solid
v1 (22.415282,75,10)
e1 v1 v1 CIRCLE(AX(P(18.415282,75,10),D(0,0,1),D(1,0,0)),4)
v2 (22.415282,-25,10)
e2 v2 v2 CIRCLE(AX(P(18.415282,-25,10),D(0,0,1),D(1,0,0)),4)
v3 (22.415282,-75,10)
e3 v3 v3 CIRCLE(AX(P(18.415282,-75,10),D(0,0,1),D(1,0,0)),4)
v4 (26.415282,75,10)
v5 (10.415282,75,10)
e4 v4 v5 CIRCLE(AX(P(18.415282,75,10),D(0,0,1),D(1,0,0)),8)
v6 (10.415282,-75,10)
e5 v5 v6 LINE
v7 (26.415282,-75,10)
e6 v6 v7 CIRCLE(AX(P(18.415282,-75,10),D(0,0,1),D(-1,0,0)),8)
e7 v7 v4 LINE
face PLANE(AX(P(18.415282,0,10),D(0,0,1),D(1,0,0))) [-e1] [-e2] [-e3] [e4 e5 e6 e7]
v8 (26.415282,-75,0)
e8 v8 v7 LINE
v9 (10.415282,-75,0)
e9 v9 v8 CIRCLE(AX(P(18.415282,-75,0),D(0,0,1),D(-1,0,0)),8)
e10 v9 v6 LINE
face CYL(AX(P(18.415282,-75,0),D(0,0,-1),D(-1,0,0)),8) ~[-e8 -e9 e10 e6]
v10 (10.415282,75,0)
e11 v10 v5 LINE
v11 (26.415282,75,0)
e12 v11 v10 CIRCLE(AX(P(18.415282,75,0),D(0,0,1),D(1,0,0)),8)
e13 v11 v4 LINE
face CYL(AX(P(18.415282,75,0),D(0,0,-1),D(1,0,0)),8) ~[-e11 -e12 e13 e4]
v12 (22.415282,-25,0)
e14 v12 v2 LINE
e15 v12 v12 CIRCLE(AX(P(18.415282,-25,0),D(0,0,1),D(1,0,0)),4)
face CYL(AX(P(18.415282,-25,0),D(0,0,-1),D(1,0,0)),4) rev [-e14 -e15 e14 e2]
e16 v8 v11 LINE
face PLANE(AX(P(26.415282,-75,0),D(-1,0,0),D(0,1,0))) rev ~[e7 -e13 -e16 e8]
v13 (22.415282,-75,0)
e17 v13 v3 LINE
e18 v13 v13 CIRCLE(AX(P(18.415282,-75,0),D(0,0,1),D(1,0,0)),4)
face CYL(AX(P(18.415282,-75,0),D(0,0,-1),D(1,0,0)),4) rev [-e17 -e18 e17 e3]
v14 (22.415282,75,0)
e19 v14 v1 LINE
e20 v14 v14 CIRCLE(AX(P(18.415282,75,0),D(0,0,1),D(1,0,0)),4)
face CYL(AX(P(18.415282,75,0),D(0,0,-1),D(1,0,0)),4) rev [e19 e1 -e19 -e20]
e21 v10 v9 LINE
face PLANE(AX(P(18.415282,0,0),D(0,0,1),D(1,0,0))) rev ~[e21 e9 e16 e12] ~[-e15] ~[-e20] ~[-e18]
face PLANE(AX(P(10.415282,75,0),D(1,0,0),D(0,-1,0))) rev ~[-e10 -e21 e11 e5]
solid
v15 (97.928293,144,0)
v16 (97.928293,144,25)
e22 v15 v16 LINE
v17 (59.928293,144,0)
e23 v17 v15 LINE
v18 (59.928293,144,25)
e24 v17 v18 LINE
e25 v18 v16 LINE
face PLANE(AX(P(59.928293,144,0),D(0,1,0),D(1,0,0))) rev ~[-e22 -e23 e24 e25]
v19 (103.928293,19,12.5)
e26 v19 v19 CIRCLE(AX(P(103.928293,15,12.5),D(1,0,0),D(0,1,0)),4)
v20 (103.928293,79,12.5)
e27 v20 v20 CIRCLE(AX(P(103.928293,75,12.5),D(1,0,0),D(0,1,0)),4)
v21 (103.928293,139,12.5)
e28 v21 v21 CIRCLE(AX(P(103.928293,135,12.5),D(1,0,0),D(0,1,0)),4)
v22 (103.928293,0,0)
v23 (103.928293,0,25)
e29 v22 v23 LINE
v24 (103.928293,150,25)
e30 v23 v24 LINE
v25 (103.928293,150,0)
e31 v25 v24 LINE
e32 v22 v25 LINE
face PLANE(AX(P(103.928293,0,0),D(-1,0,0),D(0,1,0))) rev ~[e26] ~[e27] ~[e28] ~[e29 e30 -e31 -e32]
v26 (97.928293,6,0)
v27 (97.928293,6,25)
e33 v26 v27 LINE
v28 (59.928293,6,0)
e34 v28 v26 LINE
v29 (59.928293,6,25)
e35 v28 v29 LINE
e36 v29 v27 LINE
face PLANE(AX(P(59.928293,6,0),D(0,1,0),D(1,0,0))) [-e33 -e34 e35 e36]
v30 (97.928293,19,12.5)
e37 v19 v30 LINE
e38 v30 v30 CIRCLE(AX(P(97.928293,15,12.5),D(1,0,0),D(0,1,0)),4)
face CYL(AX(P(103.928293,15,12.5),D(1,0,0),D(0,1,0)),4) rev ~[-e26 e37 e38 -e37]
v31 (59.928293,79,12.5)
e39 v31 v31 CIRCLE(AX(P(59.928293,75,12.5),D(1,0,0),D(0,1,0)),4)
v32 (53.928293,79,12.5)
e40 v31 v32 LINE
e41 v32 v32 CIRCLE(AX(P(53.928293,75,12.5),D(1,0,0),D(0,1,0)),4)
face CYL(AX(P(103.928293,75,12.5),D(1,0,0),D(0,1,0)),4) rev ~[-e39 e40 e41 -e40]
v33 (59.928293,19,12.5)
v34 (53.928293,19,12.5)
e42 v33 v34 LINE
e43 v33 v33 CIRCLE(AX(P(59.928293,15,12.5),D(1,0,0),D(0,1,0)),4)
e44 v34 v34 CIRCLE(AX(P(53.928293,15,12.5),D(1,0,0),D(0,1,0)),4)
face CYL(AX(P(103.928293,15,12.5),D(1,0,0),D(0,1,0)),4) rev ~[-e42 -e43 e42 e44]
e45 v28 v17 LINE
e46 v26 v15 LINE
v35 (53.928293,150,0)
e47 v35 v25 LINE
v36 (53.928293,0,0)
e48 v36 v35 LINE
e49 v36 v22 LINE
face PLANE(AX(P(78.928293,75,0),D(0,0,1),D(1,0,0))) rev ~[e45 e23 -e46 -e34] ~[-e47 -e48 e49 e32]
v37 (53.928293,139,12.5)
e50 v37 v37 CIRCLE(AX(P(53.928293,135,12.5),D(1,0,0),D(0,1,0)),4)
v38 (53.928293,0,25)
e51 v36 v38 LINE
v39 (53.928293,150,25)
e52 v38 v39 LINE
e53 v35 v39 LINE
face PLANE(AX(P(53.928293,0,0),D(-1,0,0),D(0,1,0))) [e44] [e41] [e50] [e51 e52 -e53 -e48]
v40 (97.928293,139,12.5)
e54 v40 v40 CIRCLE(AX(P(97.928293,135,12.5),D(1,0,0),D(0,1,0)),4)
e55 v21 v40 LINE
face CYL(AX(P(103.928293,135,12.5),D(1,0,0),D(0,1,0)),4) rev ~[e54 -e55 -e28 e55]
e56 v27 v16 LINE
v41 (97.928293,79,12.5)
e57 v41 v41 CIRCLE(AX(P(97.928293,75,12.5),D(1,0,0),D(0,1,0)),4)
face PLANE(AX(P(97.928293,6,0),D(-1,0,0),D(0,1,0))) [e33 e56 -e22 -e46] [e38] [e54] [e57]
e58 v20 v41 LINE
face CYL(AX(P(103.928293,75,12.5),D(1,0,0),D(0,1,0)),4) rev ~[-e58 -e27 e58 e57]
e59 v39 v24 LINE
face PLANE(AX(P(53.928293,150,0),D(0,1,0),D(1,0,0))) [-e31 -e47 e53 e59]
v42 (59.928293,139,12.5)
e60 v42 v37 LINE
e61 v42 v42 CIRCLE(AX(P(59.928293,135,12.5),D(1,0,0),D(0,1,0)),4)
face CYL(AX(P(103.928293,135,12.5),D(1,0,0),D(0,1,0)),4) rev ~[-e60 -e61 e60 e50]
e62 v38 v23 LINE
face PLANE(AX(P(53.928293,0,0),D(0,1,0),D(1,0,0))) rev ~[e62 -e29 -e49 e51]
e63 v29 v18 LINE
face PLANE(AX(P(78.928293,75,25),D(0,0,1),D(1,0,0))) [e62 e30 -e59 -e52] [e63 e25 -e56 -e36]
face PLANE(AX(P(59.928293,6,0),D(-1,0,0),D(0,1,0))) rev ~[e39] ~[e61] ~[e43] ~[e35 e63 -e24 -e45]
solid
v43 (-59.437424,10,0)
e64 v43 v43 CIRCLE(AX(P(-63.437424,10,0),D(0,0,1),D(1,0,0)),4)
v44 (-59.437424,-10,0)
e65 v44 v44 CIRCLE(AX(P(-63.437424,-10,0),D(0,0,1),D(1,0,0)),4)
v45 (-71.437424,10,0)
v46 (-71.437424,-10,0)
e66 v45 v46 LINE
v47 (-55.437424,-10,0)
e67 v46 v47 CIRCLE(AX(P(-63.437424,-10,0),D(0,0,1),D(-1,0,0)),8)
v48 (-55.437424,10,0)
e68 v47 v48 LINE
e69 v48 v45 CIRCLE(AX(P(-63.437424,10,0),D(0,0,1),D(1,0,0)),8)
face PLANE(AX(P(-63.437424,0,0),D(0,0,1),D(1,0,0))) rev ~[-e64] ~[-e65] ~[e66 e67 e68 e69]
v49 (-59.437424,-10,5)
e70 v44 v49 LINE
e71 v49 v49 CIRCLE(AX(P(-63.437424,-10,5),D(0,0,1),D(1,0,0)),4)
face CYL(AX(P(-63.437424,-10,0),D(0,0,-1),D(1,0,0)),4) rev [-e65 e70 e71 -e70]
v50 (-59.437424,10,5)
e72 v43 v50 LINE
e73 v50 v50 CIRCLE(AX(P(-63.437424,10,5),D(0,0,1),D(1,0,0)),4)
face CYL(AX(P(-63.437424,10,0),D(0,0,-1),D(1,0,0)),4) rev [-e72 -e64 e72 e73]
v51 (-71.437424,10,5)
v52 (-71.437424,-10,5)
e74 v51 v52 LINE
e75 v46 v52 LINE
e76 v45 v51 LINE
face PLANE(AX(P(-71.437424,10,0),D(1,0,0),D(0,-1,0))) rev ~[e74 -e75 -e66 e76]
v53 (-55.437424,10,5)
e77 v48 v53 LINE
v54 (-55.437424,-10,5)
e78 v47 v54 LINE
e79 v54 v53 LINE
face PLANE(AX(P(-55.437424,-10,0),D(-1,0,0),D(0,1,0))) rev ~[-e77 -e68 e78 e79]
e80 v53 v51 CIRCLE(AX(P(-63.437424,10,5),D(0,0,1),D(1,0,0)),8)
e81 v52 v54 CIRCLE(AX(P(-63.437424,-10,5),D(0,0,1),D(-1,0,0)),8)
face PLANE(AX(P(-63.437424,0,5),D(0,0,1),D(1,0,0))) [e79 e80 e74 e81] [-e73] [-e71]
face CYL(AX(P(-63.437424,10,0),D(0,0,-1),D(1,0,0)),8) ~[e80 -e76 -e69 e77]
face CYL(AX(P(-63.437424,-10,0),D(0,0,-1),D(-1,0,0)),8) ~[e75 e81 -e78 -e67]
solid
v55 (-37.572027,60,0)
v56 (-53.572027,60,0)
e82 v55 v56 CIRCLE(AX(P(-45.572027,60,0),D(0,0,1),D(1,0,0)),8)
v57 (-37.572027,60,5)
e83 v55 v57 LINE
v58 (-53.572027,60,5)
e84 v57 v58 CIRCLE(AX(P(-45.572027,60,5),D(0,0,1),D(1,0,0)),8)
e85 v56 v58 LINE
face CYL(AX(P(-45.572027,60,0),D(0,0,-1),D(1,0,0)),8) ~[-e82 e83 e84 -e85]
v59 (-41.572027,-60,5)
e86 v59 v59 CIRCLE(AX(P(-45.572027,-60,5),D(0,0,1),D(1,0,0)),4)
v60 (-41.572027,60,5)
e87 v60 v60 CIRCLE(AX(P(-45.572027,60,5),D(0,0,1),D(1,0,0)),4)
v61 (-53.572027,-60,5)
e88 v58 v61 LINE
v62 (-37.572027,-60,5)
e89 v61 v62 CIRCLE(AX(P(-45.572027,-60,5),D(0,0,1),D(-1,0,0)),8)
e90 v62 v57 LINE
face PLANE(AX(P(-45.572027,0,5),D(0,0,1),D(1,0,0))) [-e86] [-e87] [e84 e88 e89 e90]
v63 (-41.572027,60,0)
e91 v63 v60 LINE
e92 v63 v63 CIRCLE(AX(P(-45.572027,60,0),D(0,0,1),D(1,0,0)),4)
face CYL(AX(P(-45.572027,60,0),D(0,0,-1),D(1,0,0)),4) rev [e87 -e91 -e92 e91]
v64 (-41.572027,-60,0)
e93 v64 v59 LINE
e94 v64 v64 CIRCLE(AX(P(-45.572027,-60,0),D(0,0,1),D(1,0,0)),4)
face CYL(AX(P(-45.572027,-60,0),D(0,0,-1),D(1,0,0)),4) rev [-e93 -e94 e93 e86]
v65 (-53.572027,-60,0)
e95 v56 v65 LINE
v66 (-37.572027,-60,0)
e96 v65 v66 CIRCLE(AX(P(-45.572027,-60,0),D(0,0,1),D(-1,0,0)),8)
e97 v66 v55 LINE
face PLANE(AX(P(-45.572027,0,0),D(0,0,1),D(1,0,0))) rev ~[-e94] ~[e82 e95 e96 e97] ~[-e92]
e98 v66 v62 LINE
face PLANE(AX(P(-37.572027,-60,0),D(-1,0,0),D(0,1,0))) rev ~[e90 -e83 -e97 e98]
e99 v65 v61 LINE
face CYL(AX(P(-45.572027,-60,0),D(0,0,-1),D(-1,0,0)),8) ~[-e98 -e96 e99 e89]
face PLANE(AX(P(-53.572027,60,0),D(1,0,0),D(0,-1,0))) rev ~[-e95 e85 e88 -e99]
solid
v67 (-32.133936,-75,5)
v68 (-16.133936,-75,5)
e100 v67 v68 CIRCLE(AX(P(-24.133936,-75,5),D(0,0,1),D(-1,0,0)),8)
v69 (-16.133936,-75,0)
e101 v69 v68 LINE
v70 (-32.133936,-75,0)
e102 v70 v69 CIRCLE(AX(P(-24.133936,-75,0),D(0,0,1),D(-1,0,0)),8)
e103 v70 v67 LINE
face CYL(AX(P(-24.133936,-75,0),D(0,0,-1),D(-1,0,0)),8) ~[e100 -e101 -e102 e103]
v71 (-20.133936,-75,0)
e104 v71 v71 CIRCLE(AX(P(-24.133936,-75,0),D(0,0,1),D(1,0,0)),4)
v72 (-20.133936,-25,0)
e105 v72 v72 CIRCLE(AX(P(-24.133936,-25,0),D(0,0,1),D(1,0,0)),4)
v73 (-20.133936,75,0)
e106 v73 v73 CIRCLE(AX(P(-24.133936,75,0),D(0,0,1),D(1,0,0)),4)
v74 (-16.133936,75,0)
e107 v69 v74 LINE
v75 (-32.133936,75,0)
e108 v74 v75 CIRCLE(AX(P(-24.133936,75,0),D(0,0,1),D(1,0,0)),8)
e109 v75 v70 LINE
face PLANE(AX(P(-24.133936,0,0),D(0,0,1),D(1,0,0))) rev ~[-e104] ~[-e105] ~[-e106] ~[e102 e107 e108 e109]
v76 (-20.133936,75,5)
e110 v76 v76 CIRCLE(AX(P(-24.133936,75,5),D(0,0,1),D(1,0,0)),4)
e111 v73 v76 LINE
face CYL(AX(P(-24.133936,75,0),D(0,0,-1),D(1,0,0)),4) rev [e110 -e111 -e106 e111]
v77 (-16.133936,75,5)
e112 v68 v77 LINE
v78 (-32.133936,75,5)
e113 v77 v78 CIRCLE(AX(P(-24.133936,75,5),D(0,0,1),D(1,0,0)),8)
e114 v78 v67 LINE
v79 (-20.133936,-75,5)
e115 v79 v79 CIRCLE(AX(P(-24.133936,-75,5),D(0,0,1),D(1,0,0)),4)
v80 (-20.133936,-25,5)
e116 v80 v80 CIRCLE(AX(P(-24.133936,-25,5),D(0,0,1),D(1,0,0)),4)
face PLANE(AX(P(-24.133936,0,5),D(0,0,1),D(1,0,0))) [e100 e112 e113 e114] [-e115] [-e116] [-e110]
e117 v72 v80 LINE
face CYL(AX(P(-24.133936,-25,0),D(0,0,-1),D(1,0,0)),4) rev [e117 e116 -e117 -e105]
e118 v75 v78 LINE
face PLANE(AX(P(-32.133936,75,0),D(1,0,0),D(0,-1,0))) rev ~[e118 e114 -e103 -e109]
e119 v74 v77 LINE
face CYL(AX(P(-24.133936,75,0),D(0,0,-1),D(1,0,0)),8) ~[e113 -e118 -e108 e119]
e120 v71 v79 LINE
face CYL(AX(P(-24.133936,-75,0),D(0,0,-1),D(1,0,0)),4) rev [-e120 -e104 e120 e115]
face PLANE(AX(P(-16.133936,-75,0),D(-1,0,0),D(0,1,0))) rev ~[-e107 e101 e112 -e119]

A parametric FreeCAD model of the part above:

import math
import FreeCAD as App
import Part
import Sketcher
from FreeCAD import Vector
Q = App.Units.Quantity

doc = App.newDocument("Part")
body = doc.addObject("PartDesign::Body", "Body")

# Sketch on XY plane
sketch1 = doc.addObject("Sketcher::SketchObject", "Sketch")
body.addObject(sketch1)
sketch1.AttachmentSupport = (doc.XY_Plane, [""])
sketch1.MapMode = "FlatFace"
sketch1.addGeometry([
    Part.LineSegment(Vector(54, 150, 0), Vector(54, 0, 0)),  # 0
    Part.LineSegment(Vector(54, 0, 0), Vector(104, 0, 0)),  # 1
    Part.LineSegment(Vector(104, 0, 0), Vector(104, 150, 0)),  # 2
    Part.LineSegment(Vector(104, 150, 0), Vector(54, 150, 0)),  # 3
    Part.LineSegment(Vector(98, 6, 0), Vector(60, 6, 0)),  # 4
    Part.LineSegment(Vector(60, 6, 0), Vector(60, 144, 0)),  # 5
    Part.LineSegment(Vector(60, 144, 0), Vector(98, 144, 0)),  # 6
    Part.LineSegment(Vector(98, 144, 0), Vector(98, 6, 0)),  # 7
], False)
sketch1.addConstraint([
    Sketcher.Constraint("Coincident", 0, 2, 1, 1),
    Sketcher.Constraint("Coincident", 1, 2, 2, 1),
    Sketcher.Constraint("Coincident", 2, 2, 3, 1),
    Sketcher.Constraint("Coincident", 3, 2, 0, 1),
    Sketcher.Constraint("Coincident", 4, 2, 5, 1),
    Sketcher.Constraint("Coincident", 5, 2, 6, 1),
    Sketcher.Constraint("Coincident", 6, 2, 7, 1),
    Sketcher.Constraint("Coincident", 7, 2, 4, 1),
    Sketcher.Constraint("Vertical", 0),
    Sketcher.Constraint("Horizontal", 1),
    Sketcher.Constraint("Vertical", 2),
    Sketcher.Constraint("Horizontal", 3),
    Sketcher.Constraint("Horizontal", 4),
    Sketcher.Constraint("Vertical", 5),
    Sketcher.Constraint("Horizontal", 6),
    Sketcher.Constraint("Vertical", 7),
    Sketcher.Constraint("PointOnObject", 0, 2, -1),
    Sketcher.Constraint("DistanceX", 1, 1, 1, 2, Q("50 mm")),
    Sketcher.Constraint("DistanceX", 4, 2, 4, 1, Q("38 mm")),
    Sketcher.Constraint("DistanceY", 0, 2, 0, 1, Q("150 mm")),
    Sketcher.Constraint("DistanceY", 5, 1, 5, 2, Q("138 mm")),
    Sketcher.Constraint("DistanceY", -1, 1, 4, 2, Q("6 mm")),
    Sketcher.Constraint("DistanceX", 0, 2, 4, 2, Q("6 mm")),
    Sketcher.Constraint("DistanceX", -1, 1, 0, 2, Q("53.928293 mm")),
])
pad1 = doc.addObject("PartDesign::Pad", "Pad")
body.addObject(pad1)
pad1.Profile = sketch1
pad1.Length = 25

# Sketch on YZ plane
sketch2 = doc.addObject("Sketcher::SketchObject", "Sketch001")
body.addObject(sketch2)
sketch2.AttachmentSupport = (doc.YZ_Plane, [""])
sketch2.MapMode = "FlatFace"
sketch2.AttachmentOffset = App.Placement(Vector(0, 0, 103.928293), App.Rotation())
sketch2.addGeometry([
    Part.Circle(Vector(15, 12.5, 0), Vector(0, 0, 1), 4),
    Part.Circle(Vector(75, 12.5, 0), Vector(0, 0, 1), 4),
    Part.Circle(Vector(135, 12.5, 0), Vector(0, 0, 1), 4),
], False)
sketch2.addConstraint([
    Sketcher.Constraint("Equal", 0, 1),
    Sketcher.Constraint("Equal", 1, 2),
    Sketcher.Constraint("Horizontal", 0, 3, 1, 3),
    Sketcher.Constraint("Horizontal", 1, 3, 2, 3),
    Sketcher.Constraint("Diameter", 0, Q("8 mm")),
    Sketcher.Constraint("DistanceX", -1, 1, 0, 3, Q("15 mm")),
    Sketcher.Constraint("DistanceX", -1, 1, 1, 3, Q("75 mm")),
    Sketcher.Constraint("DistanceX", -1, 1, 2, 3, Q("135 mm")),
    Sketcher.Constraint("DistanceY", -1, 1, 0, 3, Q("12.5 mm")),
])
pocket1 = doc.addObject("PartDesign::Pocket", "Pocket")
body.addObject(pocket1)
pocket1.Profile = sketch2
pocket1.Length = 67.1
body2 = doc.addObject("PartDesign::Body", "Body001")

# Sketch on XY plane
sketch3 = doc.addObject("Sketcher::SketchObject", "Sketch002")
body2.addObject(sketch3)
sketch3.AttachmentSupport = (doc.getObject("XY_Plane001"), [""])
sketch3.MapMode = "FlatFace"
sketch3.addGeometry([
    Part.LineSegment(Vector(-16.1, -75, 0), Vector(-16.1, 75, 0)),  # 0
    Part.ArcOfCircle(Part.Circle(Vector(-24.1, 75, 0), Vector(0, 0, 1), 8), math.radians(0), math.radians(180)),  # 1
    Part.LineSegment(Vector(-32.1, 75, 0), Vector(-32.1, -75, 0)),  # 2
    Part.ArcOfCircle(Part.Circle(Vector(-24.1, -75, 0), Vector(0, 0, 1), 8), math.radians(180), math.radians(360)),  # 3
    Part.Circle(Vector(-24.1, -75, 0), Vector(0, 0, 1), 4),  # 4
    Part.Circle(Vector(-24.1, -25, 0), Vector(0, 0, 1), 4),  # 5
    Part.Circle(Vector(-24.1, 75, 0), Vector(0, 0, 1), 4),  # 6
], False)
sketch3.addConstraint([
    Sketcher.Constraint("Tangent", 0, 2, 1, 1),
    Sketcher.Constraint("Tangent", 1, 2, 2, 1),
    Sketcher.Constraint("Tangent", 2, 2, 3, 1),
    Sketcher.Constraint("Tangent", 3, 2, 0, 1),
    Sketcher.Constraint("Vertical", 0),
    Sketcher.Constraint("Vertical", 2),
    Sketcher.Constraint("Coincident", 4, 3, 3, 3),
    Sketcher.Constraint("Coincident", 6, 3, 1, 3),
    Sketcher.Constraint("Equal", 4, 5),
    Sketcher.Constraint("Equal", 5, 6),
    Sketcher.Constraint("Vertical", 4, 3, 5, 3),
    Sketcher.Constraint("Diameter", 4, Q("8 mm")),
    Sketcher.Constraint("Radius", 1, Q("8 mm")),
    Sketcher.Constraint("DistanceY", 0, 1, 0, 2, Q("150 mm")),
    Sketcher.Constraint("DistanceY", -1, 1, 1, 3, Q("75 mm")),
    Sketcher.Constraint("DistanceY", 5, 3, -1, 1, Q("25 mm")),
    Sketcher.Constraint("DistanceX", 1, 3, -1, 1, Q("24.133936 mm")),
])
pad2 = doc.addObject("PartDesign::Pad", "Pad001")
body2.addObject(pad2)
pad2.Profile = sketch3
pad2.Length = 5
body3 = doc.addObject("PartDesign::Body", "Body002")

# Sketch on XY plane
sketch4 = doc.addObject("Sketcher::SketchObject", "Sketch003")
body3.addObject(sketch4)
sketch4.AttachmentSupport = (doc.getObject("XY_Plane002"), [""])
sketch4.MapMode = "FlatFace"
sketch4.addGeometry([
    Part.LineSegment(Vector(-37.6, -60, 0), Vector(-37.6, 60, 0)),  # 0
    Part.ArcOfCircle(Part.Circle(Vector(-45.6, 60, 0), Vector(0, 0, 1), 8), math.radians(0), math.radians(180)),  # 1
    Part.LineSegment(Vector(-53.6, 60, 0), Vector(-53.6, -60, 0)),  # 2
    Part.ArcOfCircle(Part.Circle(Vector(-45.6, -60, 0), Vector(0, 0, 1), 8), math.radians(180), math.radians(360)),  # 3
    Part.Circle(Vector(-45.6, -60, 0), Vector(0, 0, 1), 4),  # 4
    Part.Circle(Vector(-45.6, 60, 0), Vector(0, 0, 1), 4),  # 5
], False)
sketch4.addConstraint([
    Sketcher.Constraint("Tangent", 0, 2, 1, 1),
    Sketcher.Constraint("Tangent", 1, 2, 2, 1),
    Sketcher.Constraint("Tangent", 2, 2, 3, 1),
    Sketcher.Constraint("Tangent", 3, 2, 0, 1),
    Sketcher.Constraint("Vertical", 0),
    Sketcher.Constraint("Vertical", 2),
    Sketcher.Constraint("Coincident", 4, 3, 3, 3),
    Sketcher.Constraint("Coincident", 5, 3, 1, 3),
    Sketcher.Constraint("Equal", 4, 5),
    Sketcher.Constraint("Diameter", 4, Q("8 mm")),
    Sketcher.Constraint("Radius", 1, Q("8 mm")),
    Sketcher.Constraint("DistanceY", 0, 1, 0, 2, Q("120 mm")),
    Sketcher.Constraint("DistanceY", -1, 1, 1, 3, Q("60 mm")),
    Sketcher.Constraint("DistanceX", 1, 3, -1, 1, Q("45.572027 mm")),
])
pad3 = doc.addObject("PartDesign::Pad", "Pad002")
body3.addObject(pad3)
pad3.Profile = sketch4
pad3.Length = 5
body4 = doc.addObject("PartDesign::Body", "Body003")

# Sketch on XY plane
sketch5 = doc.addObject("Sketcher::SketchObject", "Sketch004")
body4.addObject(sketch5)
sketch5.AttachmentSupport = (doc.getObject("XY_Plane003"), [""])
sketch5.MapMode = "FlatFace"
sketch5.addGeometry([
    Part.LineSegment(Vector(-55.4, -10, 0), Vector(-55.4, 10, 0)),  # 0
    Part.ArcOfCircle(Part.Circle(Vector(-63.4, 10, 0), Vector(0, 0, 1), 8), math.radians(0), math.radians(180)),  # 1
    Part.LineSegment(Vector(-71.4, 10, 0), Vector(-71.4, -10, 0)),  # 2
    Part.ArcOfCircle(Part.Circle(Vector(-63.4, -10, 0), Vector(0, 0, 1), 8), math.radians(180), math.radians(360)),  # 3
    Part.Circle(Vector(-63.4, -10, 0), Vector(0, 0, 1), 4),  # 4
    Part.Circle(Vector(-63.4, 10, 0), Vector(0, 0, 1), 4),  # 5
], False)
sketch5.addConstraint([
    Sketcher.Constraint("Tangent", 0, 2, 1, 1),
    Sketcher.Constraint("Tangent", 1, 2, 2, 1),
    Sketcher.Constraint("Tangent", 2, 2, 3, 1),
    Sketcher.Constraint("Tangent", 3, 2, 0, 1),
    Sketcher.Constraint("Vertical", 0),
    Sketcher.Constraint("Vertical", 2),
    Sketcher.Constraint("Coincident", 4, 3, 3, 3),
    Sketcher.Constraint("Coincident", 5, 3, 1, 3),
    Sketcher.Constraint("Equal", 4, 5),
    Sketcher.Constraint("Diameter", 4, Q("8 mm")),
    Sketcher.Constraint("Radius", 1, Q("8 mm")),
    Sketcher.Constraint("DistanceY", 0, 1, 0, 2, Q("20 mm")),
    Sketcher.Constraint("DistanceY", -1, 1, 1, 3, Q("10 mm")),
    Sketcher.Constraint("DistanceX", 1, 3, -1, 1, Q("63.437424 mm")),
])
pad4 = doc.addObject("PartDesign::Pad", "Pad003")
body4.addObject(pad4)
pad4.Profile = sketch5
pad4.Length = 5
body5 = doc.addObject("PartDesign::Body", "Body004")

# Sketch on XY plane
sketch6 = doc.addObject("Sketcher::SketchObject", "Sketch005")
body5.addObject(sketch6)
sketch6.AttachmentSupport = (doc.getObject("XY_Plane004"), [""])
sketch6.MapMode = "FlatFace"
sketch6.addGeometry([
    Part.LineSegment(Vector(26.4, -75, 0), Vector(26.4, 75, 0)),  # 0
    Part.ArcOfCircle(Part.Circle(Vector(18.4, 75, 0), Vector(0, 0, 1), 8), math.radians(0), math.radians(180)),  # 1
    Part.LineSegment(Vector(10.4, 75, 0), Vector(10.4, -75, 0)),  # 2
    Part.ArcOfCircle(Part.Circle(Vector(18.4, -75, 0), Vector(0, 0, 1), 8), math.radians(180), math.radians(360)),  # 3
    Part.Circle(Vector(18.4, -75, 0), Vector(0, 0, 1), 4),  # 4
    Part.Circle(Vector(18.4, -25, 0), Vector(0, 0, 1), 4),  # 5
    Part.Circle(Vector(18.4, 75, 0), Vector(0, 0, 1), 4),  # 6
], False)
sketch6.addConstraint([
    Sketcher.Constraint("Tangent", 0, 2, 1, 1),
    Sketcher.Constraint("Tangent", 1, 2, 2, 1),
    Sketcher.Constraint("Tangent", 2, 2, 3, 1),
    Sketcher.Constraint("Tangent", 3, 2, 0, 1),
    Sketcher.Constraint("Vertical", 0),
    Sketcher.Constraint("Vertical", 2),
    Sketcher.Constraint("Coincident", 4, 3, 3, 3),
    Sketcher.Constraint("Coincident", 6, 3, 1, 3),
    Sketcher.Constraint("Equal", 4, 5),
    Sketcher.Constraint("Equal", 5, 6),
    Sketcher.Constraint("Vertical", 4, 3, 5, 3),
    Sketcher.Constraint("Diameter", 4, Q("8 mm")),
    Sketcher.Constraint("Radius", 1, Q("8 mm")),
    Sketcher.Constraint("DistanceY", 0, 1, 0, 2, Q("150 mm")),
    Sketcher.Constraint("DistanceY", -1, 1, 1, 3, Q("75 mm")),
    Sketcher.Constraint("DistanceY", 5, 3, -1, 1, Q("25 mm")),
    Sketcher.Constraint("DistanceX", -1, 1, 1, 3, Q("18.415282 mm")),
])
pad5 = doc.addObject("PartDesign::Pad", "Pad004")
body5.addObject(pad5)
pad5.Profile = sketch6
pad5.Length = 10

doc.recompute()
